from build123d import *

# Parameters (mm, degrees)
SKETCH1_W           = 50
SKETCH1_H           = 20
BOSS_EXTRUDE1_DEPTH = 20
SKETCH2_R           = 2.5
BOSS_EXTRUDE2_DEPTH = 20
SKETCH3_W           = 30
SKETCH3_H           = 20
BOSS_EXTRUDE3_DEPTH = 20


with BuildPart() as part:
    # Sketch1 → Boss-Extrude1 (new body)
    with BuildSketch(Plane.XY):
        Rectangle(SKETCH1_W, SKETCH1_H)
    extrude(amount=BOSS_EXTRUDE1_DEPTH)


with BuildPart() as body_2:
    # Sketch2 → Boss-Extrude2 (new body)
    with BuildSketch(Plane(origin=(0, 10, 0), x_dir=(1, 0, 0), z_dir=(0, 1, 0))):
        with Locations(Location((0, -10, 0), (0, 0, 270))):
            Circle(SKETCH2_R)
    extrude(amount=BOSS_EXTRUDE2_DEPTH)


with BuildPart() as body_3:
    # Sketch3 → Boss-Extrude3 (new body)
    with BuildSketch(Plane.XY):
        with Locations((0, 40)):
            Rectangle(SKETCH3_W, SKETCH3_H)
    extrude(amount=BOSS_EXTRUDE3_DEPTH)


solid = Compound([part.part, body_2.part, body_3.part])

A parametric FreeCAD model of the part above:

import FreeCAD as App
import Part
import Sketcher
from FreeCAD import Vector


def add_polygon(sketch, points):
    """Adds a closed chain of lines whose ends are joined by coincident constraints."""
    first, n = sketch.GeometryCount, len(points)
    for a, b in zip(points, points[1:] + points[:1]):
        sketch.addGeometry(Part.LineSegment(App.Vector(*a, 0), App.Vector(*b, 0)), False)
    for i in range(n):
        sketch.addConstraint(Sketcher.Constraint("Coincident", first + i, 2, first + (i + 1) % n, 1))

doc = App.newDocument("Part")
body = doc.addObject("PartDesign::Body", "Body")

# Sketch on XY plane
sketch1 = doc.addObject("Sketcher::SketchObject", "Sketch")
body.addObject(sketch1)
sketch1.AttachmentSupport = (doc.XY_Plane, [""])
sketch1.MapMode = "FlatFace"
add_polygon(sketch1, [(-25, 10), (-25, -10), (25, -10), (25, 10)])  # lines 0-3
sketch1.addConstraint([
    Sketcher.Constraint("Vertical", 0),
    Sketcher.Constraint("Horizontal", 1),
    Sketcher.Constraint("Vertical", 2),
    Sketcher.Constraint("Horizontal", 3),
    Sketcher.Constraint("Symmetric", 0, 2, 2, 2, -1, 1),
    Sketcher.Constraint("DistanceX", 1, 1, 1, 2, 50.0),
    Sketcher.Constraint("DistanceY", 0, 2, 0, 1, 20.0),
])
pad1 = doc.addObject("PartDesign::Pad", "Pad")
body.addObject(pad1)
pad1.Profile = sketch1
pad1.Length = 20
body2 = doc.addObject("PartDesign::Body", "Body001")

# Sketch on XZ plane
sketch2 = doc.addObject("Sketcher::SketchObject", "Sketch001")
body2.addObject(sketch2)
sketch2.AttachmentSupport = (doc.getObject("XZ_Plane001"), [""])
sketch2.MapMode = "FlatFace"
sketch2.AttachmentOffset = App.Placement(Vector(0, 0, -10), App.Rotation())
sketch2.addGeometry(Part.Circle(Vector(0, 10, 0), Vector(0, 0, 1), 2.5), False)
sketch2.addConstraint([
    Sketcher.Constraint("PointOnObject", 0, 3, -2),
    Sketcher.Constraint("Diameter", 0, 5.0),
    Sketcher.Constraint("DistanceY", -1, 1, 0, 3, 10.0),
])
pad2 = doc.addObject("PartDesign::Pad", "Pad001")
body2.addObject(pad2)
pad2.Profile = sketch2
pad2.Length = 20
pad2.Reversed = True
body3 = doc.addObject("PartDesign::Body", "Body002")

# Sketch on XY plane
sketch3 = doc.addObject("Sketcher::SketchObject", "Sketch002")
body3.addObject(sketch3)
sketch3.AttachmentSupport = (doc.getObject("XY_Plane002"), [""])
sketch3.MapMode = "FlatFace"
add_polygon(sketch3, [(-15, 50), (-15, 30), (15, 30), (15, 50)])  # lines 0-3
sketch3.addConstraint([
    Sketcher.Constraint("Vertical", 0),
    Sketcher.Constraint("Horizontal", 1),
    Sketcher.Constraint("Vertical", 2),
    Sketcher.Constraint("Horizontal", 3),
    Sketcher.Constraint("DistanceX", 1, 1, 1, 2, 30.0),
    Sketcher.Constraint("DistanceY", 0, 2, 0, 1, 20.0),
    Sketcher.Constraint("DistanceX", 0, 2, -1, 1, 15.0),
    Sketcher.Constraint("DistanceY", -1, 1, 0, 2, 30.0),
])
pad3 = doc.addObject("PartDesign::Pad", "Pad002")
body3.addObject(pad3)
pad3.Profile = sketch3
pad3.Length = 20

doc.recompute()
